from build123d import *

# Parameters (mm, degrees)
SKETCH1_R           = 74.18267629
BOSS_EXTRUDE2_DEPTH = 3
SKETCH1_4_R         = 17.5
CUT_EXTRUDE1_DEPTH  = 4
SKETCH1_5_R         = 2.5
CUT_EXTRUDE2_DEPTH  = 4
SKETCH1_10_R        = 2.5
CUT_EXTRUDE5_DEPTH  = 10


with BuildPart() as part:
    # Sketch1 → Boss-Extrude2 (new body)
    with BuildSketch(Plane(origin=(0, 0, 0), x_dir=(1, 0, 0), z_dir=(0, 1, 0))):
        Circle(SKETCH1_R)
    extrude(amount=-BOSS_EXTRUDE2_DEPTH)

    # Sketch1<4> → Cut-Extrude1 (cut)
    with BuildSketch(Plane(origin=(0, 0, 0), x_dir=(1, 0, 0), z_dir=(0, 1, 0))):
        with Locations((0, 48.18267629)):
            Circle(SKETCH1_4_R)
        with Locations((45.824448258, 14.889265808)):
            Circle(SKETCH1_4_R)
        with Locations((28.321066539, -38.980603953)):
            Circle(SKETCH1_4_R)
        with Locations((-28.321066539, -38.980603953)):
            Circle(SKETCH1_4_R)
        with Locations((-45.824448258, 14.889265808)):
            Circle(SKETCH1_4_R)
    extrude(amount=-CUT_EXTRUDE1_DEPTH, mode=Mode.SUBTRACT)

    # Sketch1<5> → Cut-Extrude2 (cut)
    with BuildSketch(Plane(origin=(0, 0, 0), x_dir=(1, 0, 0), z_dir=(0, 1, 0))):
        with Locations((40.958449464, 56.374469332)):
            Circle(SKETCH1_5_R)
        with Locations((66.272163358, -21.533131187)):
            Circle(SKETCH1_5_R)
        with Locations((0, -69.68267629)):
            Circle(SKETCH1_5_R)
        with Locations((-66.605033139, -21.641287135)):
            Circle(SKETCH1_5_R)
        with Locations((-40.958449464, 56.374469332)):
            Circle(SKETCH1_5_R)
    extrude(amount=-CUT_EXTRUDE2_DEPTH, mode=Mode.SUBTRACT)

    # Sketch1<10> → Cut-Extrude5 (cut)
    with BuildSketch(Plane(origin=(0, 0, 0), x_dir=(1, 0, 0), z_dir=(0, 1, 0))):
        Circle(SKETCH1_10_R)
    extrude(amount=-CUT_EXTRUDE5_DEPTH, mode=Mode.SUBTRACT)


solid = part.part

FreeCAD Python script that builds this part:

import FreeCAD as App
import Part
import Sketcher

doc = App.newDocument("Part")
body = doc.addObject("PartDesign::Body", "Body")

# Sketch on XZ plane
sketch1 = doc.addObject("Sketcher::SketchObject", "Sketch")
body.addObject(sketch1)
sketch1.AttachmentSupport = (doc.XZ_Plane, [""])
sketch1.MapMode = "FlatFace"
sketch1.addGeometry(Part.Circle(App.Vector(0, 0, 0), App.Vector(0, 0, 1), 74), False)
sketch1.addConstraint([
    Sketcher.Constraint("Coincident", 0, 3, -1, 1),
    Sketcher.Constraint("Diameter", 0, 148.365353),
])
pad1 = doc.addObject("PartDesign::Pad", "Pad")
body.addObject(pad1)
pad1.Profile = sketch1
pad1.Length = 3

# Sketch on XZ plane
sketch2 = doc.addObject("Sketcher::SketchObject", "Sketch001")
body.addObject(sketch2)
sketch2.AttachmentSupport = (doc.XZ_Plane, [""])
sketch2.MapMode = "FlatFace"
sketch2.addGeometry([
    Part.Circle(App.Vector(0, -48, 0), App.Vector(0, 0, 1), 18),  # 0
    Part.Circle(App.Vector(46, -15, 0), App.Vector(0, 0, 1), 18),  # 1
    Part.Circle(App.Vector(28, 39, 0), App.Vector(0, 0, 1), 18),  # 2
    Part.Circle(App.Vector(-28, 39, 0), App.Vector(0, 0, 1), 18),  # 3
    Part.Circle(App.Vector(-46, -15, 0), App.Vector(0, 0, 1), 18),  # 4
], False)
sketch2.addConstraint([
    Sketcher.Constraint("Equal", 0, 1),
    Sketcher.Constraint("Equal", 1, 2),
    Sketcher.Constraint("Equal", 2, 3),
    Sketcher.Constraint("Equal", 3, 4),
    Sketcher.Constraint("Symmetric", 2, 3, 3, 3, -2),
    Sketcher.Constraint("Symmetric", 1, 3, 4, 3, -2),
    Sketcher.Constraint("PointOnObject", 0, 3, -2),
    Sketcher.Constraint("Diameter", 0, 35.0),
    Sketcher.Constraint("DistanceX", -1, 1, 1, 3, 45.824448),
    Sketcher.Constraint("DistanceY", 0, 3, 1, 3, 33.29341),
    Sketcher.Constraint("DistanceX", 2, 3, 1, 3, 17.503382),
    Sketcher.Constraint("DistanceY", 1, 3, 2, 3, 53.86987),
    Sketcher.Constraint("DistanceY", 0, 3, -1, 1, 48.182676),
])
pocket1 = doc.addObject("PartDesign::Pocket", "Pocket")
body.addObject(pocket1)
pocket1.Profile = sketch2
pocket1.Length = 4
pocket1.Reversed = True

# Sketch on XZ plane
sketch3 = doc.addObject("Sketcher::SketchObject", "Sketch002")
body.addObject(sketch3)
sketch3.AttachmentSupport = (doc.XZ_Plane, [""])
sketch3.MapMode = "FlatFace"
sketch3.addGeometry([
    Part.Circle(App.Vector(41, -56.4, 0), App.Vector(0, 0, 1), 2.5),  # 0
    Part.Circle(App.Vector(66.3, 21.5, 0), App.Vector(0, 0, 1), 2.5),  # 1
    Part.Circle(App.Vector(0, 69.7, 0), App.Vector(0, 0, 1), 2.5),  # 2
    Part.Circle(App.Vector(-66.6, 21.6, 0), App.Vector(0, 0, 1), 2.5),  # 3
    Part.Circle(App.Vector(-41, -56.4, 0), App.Vector(0, 0, 1), 2.5),  # 4
], False)
sketch3.addConstraint([
    Sketcher.Constraint("Equal", 0, 1),
    Sketcher.Constraint("Equal", 1, 2),
    Sketcher.Constraint("Equal", 2, 3),
    Sketcher.Constraint("Equal", 3, 4),
    Sketcher.Constraint("Symmetric", 0, 3, 4, 3, -2),
    Sketcher.Constraint("PointOnObject", 2, 3, -2),
    Sketcher.Constraint("Diameter", 0, 5.0),
    Sketcher.Constraint("DistanceY", 0, 3, 1, 3, 77.907601),
    Sketcher.Constraint("DistanceX", 4, 3, 0, 3, 81.916899),
    Sketcher.Constraint("DistanceY", 0, 3, -1, 1, 56.374469),
    Sketcher.Constraint("DistanceY", 3, 3, 2, 3, 48.041389),
    Sketcher.Constraint("DistanceX", -1, 1, 1, 3, 66.272163),
    Sketcher.Constraint("DistanceY", -1, 1, 2, 3, 69.682676),
    Sketcher.Constraint("DistanceX", 3, 3, -1, 1, 66.605033),
])
pocket2 = doc.addObject("PartDesign::Pocket", "Pocket001")
body.addObject(pocket2)
pocket2.Profile = sketch3
pocket2.Length = 4
pocket2.Reversed = True

# Sketch on XZ plane
sketch4 = doc.addObject("Sketcher::SketchObject", "Sketch003")
body.addObject(sketch4)
sketch4.AttachmentSupport = (doc.XZ_Plane, [""])
sketch4.MapMode = "FlatFace"
sketch4.addGeometry(Part.Circle(App.Vector(0, 0, 0), App.Vector(0, 0, 1), 2.5), False)
sketch4.addConstraint([
    Sketcher.Constraint("Coincident", 0, 3, -1, 1),
    Sketcher.Constraint("Diameter", 0, 5.0),
])
pocket3 = doc.addObject("PartDesign::Pocket", "Pocket002")
body.addObject(pocket3)
pocket3.Profile = sketch4
pocket3.Length = 10
pocket3.Reversed = True

doc.recompute()
